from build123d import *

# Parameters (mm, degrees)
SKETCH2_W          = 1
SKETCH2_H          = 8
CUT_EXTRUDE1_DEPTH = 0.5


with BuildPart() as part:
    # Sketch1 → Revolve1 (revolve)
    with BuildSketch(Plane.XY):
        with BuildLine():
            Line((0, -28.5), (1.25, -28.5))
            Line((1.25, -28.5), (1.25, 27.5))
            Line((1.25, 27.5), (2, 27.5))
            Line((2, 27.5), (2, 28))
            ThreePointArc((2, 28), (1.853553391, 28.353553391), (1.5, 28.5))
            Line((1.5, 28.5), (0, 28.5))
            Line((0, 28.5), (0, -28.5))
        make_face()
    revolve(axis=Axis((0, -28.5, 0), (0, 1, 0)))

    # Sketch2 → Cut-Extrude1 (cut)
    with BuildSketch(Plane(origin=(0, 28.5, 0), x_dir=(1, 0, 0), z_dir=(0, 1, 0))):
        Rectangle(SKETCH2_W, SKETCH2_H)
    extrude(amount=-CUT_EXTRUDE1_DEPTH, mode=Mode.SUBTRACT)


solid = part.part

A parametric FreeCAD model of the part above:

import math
import FreeCAD as App
import Part
import Sketcher

doc = App.newDocument("Part")
body = doc.addObject("PartDesign::Body", "Body")

# Sketch on XY plane
sketch1 = body.newObject("Sketcher::SketchObject", "Sketch")
sketch1.AttachmentSupport = (doc.getObject("XY_Plane"), [""])
sketch1.MapMode = "FlatFace"
sketch1.addGeometry([
    Part.LineSegment(App.Vector(0, -28.5, 0), App.Vector(1.25, -28.5, 0)),  # 0
    Part.LineSegment(App.Vector(1.25, -28.5, 0), App.Vector(1.25, 27.5, 0)),  # 1
    Part.LineSegment(App.Vector(1.25, 27.5, 0), App.Vector(2, 27.5, 0)),  # 2
    Part.LineSegment(App.Vector(2, 27.5, 0), App.Vector(2, 28, 0)),  # 3
    Part.ArcOfCircle(Part.Circle(App.Vector(1.5, 28, 0), App.Vector(0, 0, 1), 0.5), math.radians(0), math.radians(90)),  # 4
    Part.LineSegment(App.Vector(1.5, 28.5, 0), App.Vector(0, 28.5, 0)),  # 5
    Part.LineSegment(App.Vector(0, 28.5, 0), App.Vector(0, -28.5, 0)),  # 6
], False)
sketch1.addConstraint([
    Sketcher.Constraint("Coincident", 0, 2, 1, 1),
    Sketcher.Constraint("Coincident", 1, 2, 2, 1),
    Sketcher.Constraint("Coincident", 2, 2, 3, 1),
    Sketcher.Constraint("Tangent", 3, 2, 4, 1),
    Sketcher.Constraint("Tangent", 4, 2, 5, 1),
    Sketcher.Constraint("Coincident", 5, 2, 6, 1),
    Sketcher.Constraint("Coincident", 6, 2, 0, 1),
    Sketcher.Constraint("Horizontal", 0),
    Sketcher.Constraint("Vertical", 1),
    Sketcher.Constraint("Horizontal", 2),
    Sketcher.Constraint("Vertical", 3),
    Sketcher.Constraint("Horizontal", 5),
    Sketcher.Constraint("Vertical", 6),
    Sketcher.Constraint("Symmetric", 5, 2, 6, 2, -1, 1),
    Sketcher.Constraint("Radius", 4, 0.5),
    Sketcher.Constraint("DistanceY", 1, 1, 1, 2, 56.0),
    Sketcher.Constraint("DistanceY", 6, 2, 6, 1, 57.0),
    Sketcher.Constraint("DistanceX", 5, 2, 5, 1, 1.5),
    Sketcher.Constraint("DistanceX", 0, 1, 0, 2, 1.25),
])
revolution = body.newObject("PartDesign::Revolution", "Revolution")
revolution.Profile = sketch1
revolution.ReferenceAxis = (sketch1, ["V_Axis"])
revolution.Angle = 360

# Sketch on XZ plane
sketch2 = body.newObject("Sketcher::SketchObject", "Sketch001")
sketch2.AttachmentSupport = (doc.getObject("XZ_Plane"), [""])
sketch2.MapMode = "FlatFace"
sketch2.AttachmentOffset = App.Placement(App.Vector(0, 0, -28.5), App.Rotation())
sketch2.addGeometry([
    Part.LineSegment(App.Vector(-0.5, -4, 0), App.Vector(-0.5, 4, 0)),
    Part.LineSegment(App.Vector(-0.5, 4, 0), App.Vector(0.5, 4, 0)),
    Part.LineSegment(App.Vector(0.5, 4, 0), App.Vector(0.5, -4, 0)),
    Part.LineSegment(App.Vector(0.5, -4, 0), App.Vector(-0.5, -4, 0)),
], False)
sketch2.addConstraint([
    Sketcher.Constraint("Coincident", 0, 2, 1, 1),
    Sketcher.Constraint("Coincident", 1, 2, 2, 1),
    Sketcher.Constraint("Coincident", 2, 2, 3, 1),
    Sketcher.Constraint("Coincident", 3, 2, 0, 1),
    Sketcher.Constraint("Vertical", 0),
    Sketcher.Constraint("Horizontal", 1),
    Sketcher.Constraint("Vertical", 2),
    Sketcher.Constraint("Horizontal", 3),
    Sketcher.Constraint("Symmetric", 0, 2, 2, 2, -1, 1),
    Sketcher.Constraint("DistanceX", 1, 1, 1, 2, 1.0),
    Sketcher.Constraint("DistanceY", 0, 1, 0, 2, 8.0),
])
pocket1 = body.newObject("PartDesign::Pocket", "Pocket")
pocket1.Profile = sketch2
pocket1.Length = 0.5
pocket1.Reversed = True

doc.recompute()
